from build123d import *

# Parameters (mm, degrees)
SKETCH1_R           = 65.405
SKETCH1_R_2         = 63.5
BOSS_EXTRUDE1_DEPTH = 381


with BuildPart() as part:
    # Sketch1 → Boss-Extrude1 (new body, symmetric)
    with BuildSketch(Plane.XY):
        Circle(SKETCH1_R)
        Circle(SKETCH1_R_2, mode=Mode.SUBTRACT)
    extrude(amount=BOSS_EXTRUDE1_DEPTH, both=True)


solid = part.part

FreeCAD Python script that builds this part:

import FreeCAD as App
import Part
import Sketcher

V = App.Vector
Q = App.Units.Quantity

doc = App.newDocument("Part")
params = doc.addObject("Spreadsheet::Sheet", "Params")
for row, (alias, value) in enumerate([
    ("sketch1_diameter", "5 in"),
    ("sketch1_diameter2", "5.15 in"),
    ("pad1_length", "30 in"),
], start=1):
    params.set(f"A{row}", alias)
    params.set(f"B{row}", "=" + value)
    params.setAlias(f"B{row}", alias)

body = doc.addObject("PartDesign::Body", "Body")

# Sketch on XY plane
sketch1 = body.newObject("Sketcher::SketchObject", "Sketch")
sketch1.AttachmentSupport = (doc.getObject("XY_Plane"), [""])
sketch1.MapMode = "FlatFace"
sketch1.addGeometry(Part.Circle(V(0, 0, 0), V(0, 0, 1), 65), False)
sketch1.addGeometry(Part.Circle(V(0, 0, 0), V(0, 0, 1), 64), False)
sketch1.addConstraint(Sketcher.Constraint("Coincident", 0, 3, -1, 1))
sketch1.addConstraint(Sketcher.Constraint("Coincident", 1, 3, -1, 1))
sketch1.addConstraint(Sketcher.Constraint("Diameter", 1, Q("5 in")))
sketch1.addConstraint(Sketcher.Constraint("Diameter", 0, Q("5.15 in")))
sketch1.setExpression("Constraints[2]", "Params.sketch1_diameter")
sketch1.setExpression("Constraints[3]", "Params.sketch1_diameter2")
pad1 = body.newObject("PartDesign::Pad", "Pad")
pad1.Profile = sketch1
pad1.setExpression("Length", "Params.pad1_length")
pad1.Midplane = True

doc.recompute()
